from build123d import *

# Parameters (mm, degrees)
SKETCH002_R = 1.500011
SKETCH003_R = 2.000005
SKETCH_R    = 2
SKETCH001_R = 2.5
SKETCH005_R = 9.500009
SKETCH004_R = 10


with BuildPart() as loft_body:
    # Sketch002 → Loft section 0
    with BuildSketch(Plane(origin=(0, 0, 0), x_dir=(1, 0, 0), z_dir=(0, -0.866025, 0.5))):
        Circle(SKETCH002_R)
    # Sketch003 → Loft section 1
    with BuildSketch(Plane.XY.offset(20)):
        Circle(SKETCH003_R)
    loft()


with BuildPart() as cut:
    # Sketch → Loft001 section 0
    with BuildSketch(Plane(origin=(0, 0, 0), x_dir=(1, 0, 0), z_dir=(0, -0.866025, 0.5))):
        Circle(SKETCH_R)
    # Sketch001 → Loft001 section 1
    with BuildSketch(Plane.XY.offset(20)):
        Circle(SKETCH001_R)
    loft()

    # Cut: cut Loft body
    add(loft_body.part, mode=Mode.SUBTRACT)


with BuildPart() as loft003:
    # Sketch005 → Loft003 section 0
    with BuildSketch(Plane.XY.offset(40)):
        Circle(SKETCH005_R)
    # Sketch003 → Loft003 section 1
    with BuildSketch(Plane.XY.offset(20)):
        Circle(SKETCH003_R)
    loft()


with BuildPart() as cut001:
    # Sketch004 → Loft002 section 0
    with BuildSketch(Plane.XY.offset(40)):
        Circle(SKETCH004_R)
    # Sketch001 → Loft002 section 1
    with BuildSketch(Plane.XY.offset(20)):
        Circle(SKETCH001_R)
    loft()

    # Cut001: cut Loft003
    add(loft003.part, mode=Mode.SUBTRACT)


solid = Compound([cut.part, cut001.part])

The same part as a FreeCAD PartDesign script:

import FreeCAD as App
import Part
import Sketcher

doc = App.newDocument("Part")
body = doc.addObject("PartDesign::Body", "Body")

# Sketch on an angled plane
sketch1 = doc.addObject("Sketcher::SketchObject", "Sketch")
body.addObject(sketch1)
sketch1.Placement = App.Placement(App.Vector(0, 0, 0), App.Rotation(App.Vector(1, 0, 0), App.Vector(0, 0.500000175, 0.866025303), App.Vector(0, -0.866025303, 0.500000175), "ZXY"))
sketch1.addGeometry(Part.Circle(App.Vector(0, 0, 0), App.Vector(0, 0, 1), 1.5), False)
sketch1.addConstraint(Sketcher.Constraint("Coincident", 0, 3, -1, 1))
sketch1.addConstraint(Sketcher.Constraint("Diameter", 0, 3.000022))

# Sketch on XY plane
sketch2 = doc.addObject("Sketcher::SketchObject", "Sketch001")
body.addObject(sketch2)
sketch2.AttachmentSupport = (doc.XY_Plane, [""])
sketch2.MapMode = "FlatFace"
sketch2.AttachmentOffset = App.Placement(App.Vector(0, 0, 20), App.Rotation())
sketch2.addGeometry(Part.Circle(App.Vector(0, 0, 0), App.Vector(0, 0, 1), 2), False)
sketch2.addConstraint(Sketcher.Constraint("Coincident", 0, 3, -1, 1))
sketch2.addConstraint(Sketcher.Constraint("Diameter", 0, 4.00001))

additiveloft = doc.addObject("PartDesign::AdditiveLoft", "AdditiveLoft")
body.addObject(additiveloft)
additiveloft.Profile = sketch1
additiveloft.Sections = [sketch2]
body2 = doc.addObject("PartDesign::Body", "Body001")

# Sketch on an angled plane
sketch3 = doc.addObject("Sketcher::SketchObject", "Sketch002")
body2.addObject(sketch3)
sketch3.Placement = App.Placement(App.Vector(0, 0, 0), App.Rotation(App.Vector(1, 0, 0), App.Vector(0, 0.500000175, 0.866025303), App.Vector(0, -0.866025303, 0.500000175), "ZXY"))
sketch3.addGeometry(Part.Circle(App.Vector(0, 0, 0), App.Vector(0, 0, 1), 2), False)
sketch3.addConstraint(Sketcher.Constraint("Coincident", 0, 3, -1, 1))
sketch3.addConstraint(Sketcher.Constraint("Diameter", 0, 4.0))

# Sketch on XY plane
sketch4 = doc.addObject("Sketcher::SketchObject", "Sketch003")
body2.addObject(sketch4)
sketch4.AttachmentSupport = (doc.getObject("XY_Plane001"), [""])
sketch4.MapMode = "FlatFace"
sketch4.AttachmentOffset = App.Placement(App.Vector(0, 0, 20), App.Rotation())
sketch4.addGeometry(Part.Circle(App.Vector(0, 0, 0), App.Vector(0, 0, 1), 2.5), False)
sketch4.addConstraint(Sketcher.Constraint("Coincident", 0, 3, -1, 1))
sketch4.addConstraint(Sketcher.Constraint("Diameter", 0, 5.0))

additiveloft2 = doc.addObject("PartDesign::AdditiveLoft", "AdditiveLoft001")
body2.addObject(additiveloft2)
additiveloft2.Profile = sketch3
additiveloft2.Sections = [sketch4]
doc.recompute()

boolean = doc.addObject("PartDesign::Boolean", "Boolean")
body2.addObject(boolean)
boolean.Type = "Cut"
boolean.addObjects([body])
body3 = doc.addObject("PartDesign::Body", "Body002")

# Sketch on XY plane
sketch5 = doc.addObject("Sketcher::SketchObject", "Sketch004")
body3.addObject(sketch5)
sketch5.AttachmentSupport = (doc.getObject("XY_Plane002"), [""])
sketch5.MapMode = "FlatFace"
sketch5.AttachmentOffset = App.Placement(App.Vector(0, 0, 40), App.Rotation())
sketch5.addGeometry(Part.Circle(App.Vector(0, 0, 0), App.Vector(0, 0, 1), 10), False)
sketch5.addConstraint(Sketcher.Constraint("Coincident", 0, 3, -1, 1))
sketch5.addConstraint(Sketcher.Constraint("Diameter", 0, 19.000018))

# Sketch on XY plane
sketch6 = doc.addObject("Sketcher::SketchObject", "Sketch005")
body3.addObject(sketch6)
sketch6.AttachmentSupport = (doc.getObject("XY_Plane002"), [""])
sketch6.MapMode = "FlatFace"
sketch6.AttachmentOffset = App.Placement(App.Vector(0, 0, 20), App.Rotation())
sketch6.addGeometry(Part.Circle(App.Vector(0, 0, 0), App.Vector(0, 0, 1), 2), False)
sketch6.addConstraint(Sketcher.Constraint("Coincident", 0, 3, -1, 1))
sketch6.addConstraint(Sketcher.Constraint("Diameter", 0, 4.00001))

additiveloft3 = doc.addObject("PartDesign::AdditiveLoft", "AdditiveLoft002")
body3.addObject(additiveloft3)
additiveloft3.Profile = sketch5
additiveloft3.Sections = [sketch6]
body4 = doc.addObject("PartDesign::Body", "Body003")

# Sketch on XY plane
sketch7 = doc.addObject("Sketcher::SketchObject", "Sketch006")
body4.addObject(sketch7)
sketch7.AttachmentSupport = (doc.getObject("XY_Plane003"), [""])
sketch7.MapMode = "FlatFace"
sketch7.AttachmentOffset = App.Placement(App.Vector(0, 0, 40), App.Rotation())
sketch7.addGeometry(Part.Circle(App.Vector(0, 0, 0), App.Vector(0, 0, 1), 10), False)
sketch7.addConstraint(Sketcher.Constraint("Coincident", 0, 3, -1, 1))
sketch7.addConstraint(Sketcher.Constraint("Diameter", 0, 20.0))

# Sketch on XY plane
sketch8 = doc.addObject("Sketcher::SketchObject", "Sketch007")
body4.addObject(sketch8)
sketch8.AttachmentSupport = (doc.getObject("XY_Plane003"), [""])
sketch8.MapMode = "FlatFace"
sketch8.AttachmentOffset = App.Placement(App.Vector(0, 0, 20), App.Rotation())
sketch8.addGeometry(Part.Circle(App.Vector(0, 0, 0), App.Vector(0, 0, 1), 2.5), False)
sketch8.addConstraint(Sketcher.Constraint("Coincident", 0, 3, -1, 1))
sketch8.addConstraint(Sketcher.Constraint("Diameter", 0, 5.0))

additiveloft4 = doc.addObject("PartDesign::AdditiveLoft", "AdditiveLoft003")
body4.addObject(additiveloft4)
additiveloft4.Profile = sketch7
additiveloft4.Sections = [sketch8]
doc.recompute()

boolean2 = doc.addObject("PartDesign::Boolean", "Boolean001")
body4.addObject(boolean2)
boolean2.Type = "Cut"
boolean2.addObjects([body3])

doc.recompute()
